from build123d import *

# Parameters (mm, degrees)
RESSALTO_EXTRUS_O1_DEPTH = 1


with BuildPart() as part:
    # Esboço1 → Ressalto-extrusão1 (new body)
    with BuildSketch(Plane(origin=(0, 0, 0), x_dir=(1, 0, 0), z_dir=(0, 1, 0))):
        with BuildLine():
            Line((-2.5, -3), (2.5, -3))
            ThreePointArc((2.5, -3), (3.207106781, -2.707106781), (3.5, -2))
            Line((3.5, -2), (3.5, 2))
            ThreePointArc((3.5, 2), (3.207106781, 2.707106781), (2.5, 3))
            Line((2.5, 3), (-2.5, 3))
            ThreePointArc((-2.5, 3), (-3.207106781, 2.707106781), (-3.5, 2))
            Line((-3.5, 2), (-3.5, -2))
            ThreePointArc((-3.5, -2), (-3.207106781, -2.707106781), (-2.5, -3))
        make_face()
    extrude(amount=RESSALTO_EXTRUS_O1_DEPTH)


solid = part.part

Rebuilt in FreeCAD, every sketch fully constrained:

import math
import FreeCAD as App
import Part
import Sketcher

doc = App.newDocument("Part")
body = doc.addObject("PartDesign::Body", "Body")

# Sketch on XZ plane
sketch1 = doc.addObject("Sketcher::SketchObject", "Sketch")
body.addObject(sketch1)
sketch1.AttachmentSupport = (doc.XZ_Plane, [""])
sketch1.MapMode = "FlatFace"
sketch1.addGeometry([
    Part.LineSegment(App.Vector(-2.5, 3, 0), App.Vector(2.5, 3, 0)),  # 0
    Part.ArcOfCircle(Part.Circle(App.Vector(2.5, 2, 0), App.Vector(0, 0, 1), 1), math.radians(0), math.radians(90)),  # 1
    Part.LineSegment(App.Vector(3.5, 2, 0), App.Vector(3.5, -2, 0)),  # 2
    Part.ArcOfCircle(Part.Circle(App.Vector(2.5, -2, 0), App.Vector(0, 0, 1), 1), math.radians(-90), math.radians(0)),  # 3
    Part.LineSegment(App.Vector(2.5, -3, 0), App.Vector(-2.5, -3, 0)),  # 4
    Part.ArcOfCircle(Part.Circle(App.Vector(-2.5, -2, 0), App.Vector(0, 0, 1), 1), math.radians(-180), math.radians(-90)),  # 5
    Part.LineSegment(App.Vector(-3.5, -2, 0), App.Vector(-3.5, 2, 0)),  # 6
    Part.ArcOfCircle(Part.Circle(App.Vector(-2.5, 2, 0), App.Vector(0, 0, 1), 1), math.radians(90), math.radians(180)),  # 7
], False)
sketch1.addConstraint([
    Sketcher.Constraint("Tangent", 0, 2, 1, 2),
    Sketcher.Constraint("Tangent", 1, 1, 2, 1),
    Sketcher.Constraint("Tangent", 2, 2, 3, 2),
    Sketcher.Constraint("Tangent", 3, 1, 4, 1),
    Sketcher.Constraint("Tangent", 4, 2, 5, 2),
    Sketcher.Constraint("Tangent", 5, 1, 6, 1),
    Sketcher.Constraint("Tangent", 6, 2, 7, 2),
    Sketcher.Constraint("Tangent", 7, 1, 0, 1),
    Sketcher.Constraint("Horizontal", 0),
    Sketcher.Constraint("Vertical", 2),
    Sketcher.Constraint("Horizontal", 4),
    Sketcher.Constraint("Vertical", 6),
    Sketcher.Constraint("Equal", 1, 3),
    Sketcher.Constraint("Equal", 3, 5),
    Sketcher.Constraint("Equal", 5, 7),
    Sketcher.Constraint("Symmetric", 1, 3, 5, 3, -1, 1),
    Sketcher.Constraint("Radius", 1, 1.0),
    Sketcher.Constraint("DistanceX", 0, 1, 0, 2, 5.0),
    Sketcher.Constraint("DistanceY", 2, 2, 2, 1, 4.0),
])
pad1 = doc.addObject("PartDesign::Pad", "Pad")
body.addObject(pad1)
pad1.Profile = sketch1
pad1.Length = 1
pad1.Reversed = True

doc.recompute()
